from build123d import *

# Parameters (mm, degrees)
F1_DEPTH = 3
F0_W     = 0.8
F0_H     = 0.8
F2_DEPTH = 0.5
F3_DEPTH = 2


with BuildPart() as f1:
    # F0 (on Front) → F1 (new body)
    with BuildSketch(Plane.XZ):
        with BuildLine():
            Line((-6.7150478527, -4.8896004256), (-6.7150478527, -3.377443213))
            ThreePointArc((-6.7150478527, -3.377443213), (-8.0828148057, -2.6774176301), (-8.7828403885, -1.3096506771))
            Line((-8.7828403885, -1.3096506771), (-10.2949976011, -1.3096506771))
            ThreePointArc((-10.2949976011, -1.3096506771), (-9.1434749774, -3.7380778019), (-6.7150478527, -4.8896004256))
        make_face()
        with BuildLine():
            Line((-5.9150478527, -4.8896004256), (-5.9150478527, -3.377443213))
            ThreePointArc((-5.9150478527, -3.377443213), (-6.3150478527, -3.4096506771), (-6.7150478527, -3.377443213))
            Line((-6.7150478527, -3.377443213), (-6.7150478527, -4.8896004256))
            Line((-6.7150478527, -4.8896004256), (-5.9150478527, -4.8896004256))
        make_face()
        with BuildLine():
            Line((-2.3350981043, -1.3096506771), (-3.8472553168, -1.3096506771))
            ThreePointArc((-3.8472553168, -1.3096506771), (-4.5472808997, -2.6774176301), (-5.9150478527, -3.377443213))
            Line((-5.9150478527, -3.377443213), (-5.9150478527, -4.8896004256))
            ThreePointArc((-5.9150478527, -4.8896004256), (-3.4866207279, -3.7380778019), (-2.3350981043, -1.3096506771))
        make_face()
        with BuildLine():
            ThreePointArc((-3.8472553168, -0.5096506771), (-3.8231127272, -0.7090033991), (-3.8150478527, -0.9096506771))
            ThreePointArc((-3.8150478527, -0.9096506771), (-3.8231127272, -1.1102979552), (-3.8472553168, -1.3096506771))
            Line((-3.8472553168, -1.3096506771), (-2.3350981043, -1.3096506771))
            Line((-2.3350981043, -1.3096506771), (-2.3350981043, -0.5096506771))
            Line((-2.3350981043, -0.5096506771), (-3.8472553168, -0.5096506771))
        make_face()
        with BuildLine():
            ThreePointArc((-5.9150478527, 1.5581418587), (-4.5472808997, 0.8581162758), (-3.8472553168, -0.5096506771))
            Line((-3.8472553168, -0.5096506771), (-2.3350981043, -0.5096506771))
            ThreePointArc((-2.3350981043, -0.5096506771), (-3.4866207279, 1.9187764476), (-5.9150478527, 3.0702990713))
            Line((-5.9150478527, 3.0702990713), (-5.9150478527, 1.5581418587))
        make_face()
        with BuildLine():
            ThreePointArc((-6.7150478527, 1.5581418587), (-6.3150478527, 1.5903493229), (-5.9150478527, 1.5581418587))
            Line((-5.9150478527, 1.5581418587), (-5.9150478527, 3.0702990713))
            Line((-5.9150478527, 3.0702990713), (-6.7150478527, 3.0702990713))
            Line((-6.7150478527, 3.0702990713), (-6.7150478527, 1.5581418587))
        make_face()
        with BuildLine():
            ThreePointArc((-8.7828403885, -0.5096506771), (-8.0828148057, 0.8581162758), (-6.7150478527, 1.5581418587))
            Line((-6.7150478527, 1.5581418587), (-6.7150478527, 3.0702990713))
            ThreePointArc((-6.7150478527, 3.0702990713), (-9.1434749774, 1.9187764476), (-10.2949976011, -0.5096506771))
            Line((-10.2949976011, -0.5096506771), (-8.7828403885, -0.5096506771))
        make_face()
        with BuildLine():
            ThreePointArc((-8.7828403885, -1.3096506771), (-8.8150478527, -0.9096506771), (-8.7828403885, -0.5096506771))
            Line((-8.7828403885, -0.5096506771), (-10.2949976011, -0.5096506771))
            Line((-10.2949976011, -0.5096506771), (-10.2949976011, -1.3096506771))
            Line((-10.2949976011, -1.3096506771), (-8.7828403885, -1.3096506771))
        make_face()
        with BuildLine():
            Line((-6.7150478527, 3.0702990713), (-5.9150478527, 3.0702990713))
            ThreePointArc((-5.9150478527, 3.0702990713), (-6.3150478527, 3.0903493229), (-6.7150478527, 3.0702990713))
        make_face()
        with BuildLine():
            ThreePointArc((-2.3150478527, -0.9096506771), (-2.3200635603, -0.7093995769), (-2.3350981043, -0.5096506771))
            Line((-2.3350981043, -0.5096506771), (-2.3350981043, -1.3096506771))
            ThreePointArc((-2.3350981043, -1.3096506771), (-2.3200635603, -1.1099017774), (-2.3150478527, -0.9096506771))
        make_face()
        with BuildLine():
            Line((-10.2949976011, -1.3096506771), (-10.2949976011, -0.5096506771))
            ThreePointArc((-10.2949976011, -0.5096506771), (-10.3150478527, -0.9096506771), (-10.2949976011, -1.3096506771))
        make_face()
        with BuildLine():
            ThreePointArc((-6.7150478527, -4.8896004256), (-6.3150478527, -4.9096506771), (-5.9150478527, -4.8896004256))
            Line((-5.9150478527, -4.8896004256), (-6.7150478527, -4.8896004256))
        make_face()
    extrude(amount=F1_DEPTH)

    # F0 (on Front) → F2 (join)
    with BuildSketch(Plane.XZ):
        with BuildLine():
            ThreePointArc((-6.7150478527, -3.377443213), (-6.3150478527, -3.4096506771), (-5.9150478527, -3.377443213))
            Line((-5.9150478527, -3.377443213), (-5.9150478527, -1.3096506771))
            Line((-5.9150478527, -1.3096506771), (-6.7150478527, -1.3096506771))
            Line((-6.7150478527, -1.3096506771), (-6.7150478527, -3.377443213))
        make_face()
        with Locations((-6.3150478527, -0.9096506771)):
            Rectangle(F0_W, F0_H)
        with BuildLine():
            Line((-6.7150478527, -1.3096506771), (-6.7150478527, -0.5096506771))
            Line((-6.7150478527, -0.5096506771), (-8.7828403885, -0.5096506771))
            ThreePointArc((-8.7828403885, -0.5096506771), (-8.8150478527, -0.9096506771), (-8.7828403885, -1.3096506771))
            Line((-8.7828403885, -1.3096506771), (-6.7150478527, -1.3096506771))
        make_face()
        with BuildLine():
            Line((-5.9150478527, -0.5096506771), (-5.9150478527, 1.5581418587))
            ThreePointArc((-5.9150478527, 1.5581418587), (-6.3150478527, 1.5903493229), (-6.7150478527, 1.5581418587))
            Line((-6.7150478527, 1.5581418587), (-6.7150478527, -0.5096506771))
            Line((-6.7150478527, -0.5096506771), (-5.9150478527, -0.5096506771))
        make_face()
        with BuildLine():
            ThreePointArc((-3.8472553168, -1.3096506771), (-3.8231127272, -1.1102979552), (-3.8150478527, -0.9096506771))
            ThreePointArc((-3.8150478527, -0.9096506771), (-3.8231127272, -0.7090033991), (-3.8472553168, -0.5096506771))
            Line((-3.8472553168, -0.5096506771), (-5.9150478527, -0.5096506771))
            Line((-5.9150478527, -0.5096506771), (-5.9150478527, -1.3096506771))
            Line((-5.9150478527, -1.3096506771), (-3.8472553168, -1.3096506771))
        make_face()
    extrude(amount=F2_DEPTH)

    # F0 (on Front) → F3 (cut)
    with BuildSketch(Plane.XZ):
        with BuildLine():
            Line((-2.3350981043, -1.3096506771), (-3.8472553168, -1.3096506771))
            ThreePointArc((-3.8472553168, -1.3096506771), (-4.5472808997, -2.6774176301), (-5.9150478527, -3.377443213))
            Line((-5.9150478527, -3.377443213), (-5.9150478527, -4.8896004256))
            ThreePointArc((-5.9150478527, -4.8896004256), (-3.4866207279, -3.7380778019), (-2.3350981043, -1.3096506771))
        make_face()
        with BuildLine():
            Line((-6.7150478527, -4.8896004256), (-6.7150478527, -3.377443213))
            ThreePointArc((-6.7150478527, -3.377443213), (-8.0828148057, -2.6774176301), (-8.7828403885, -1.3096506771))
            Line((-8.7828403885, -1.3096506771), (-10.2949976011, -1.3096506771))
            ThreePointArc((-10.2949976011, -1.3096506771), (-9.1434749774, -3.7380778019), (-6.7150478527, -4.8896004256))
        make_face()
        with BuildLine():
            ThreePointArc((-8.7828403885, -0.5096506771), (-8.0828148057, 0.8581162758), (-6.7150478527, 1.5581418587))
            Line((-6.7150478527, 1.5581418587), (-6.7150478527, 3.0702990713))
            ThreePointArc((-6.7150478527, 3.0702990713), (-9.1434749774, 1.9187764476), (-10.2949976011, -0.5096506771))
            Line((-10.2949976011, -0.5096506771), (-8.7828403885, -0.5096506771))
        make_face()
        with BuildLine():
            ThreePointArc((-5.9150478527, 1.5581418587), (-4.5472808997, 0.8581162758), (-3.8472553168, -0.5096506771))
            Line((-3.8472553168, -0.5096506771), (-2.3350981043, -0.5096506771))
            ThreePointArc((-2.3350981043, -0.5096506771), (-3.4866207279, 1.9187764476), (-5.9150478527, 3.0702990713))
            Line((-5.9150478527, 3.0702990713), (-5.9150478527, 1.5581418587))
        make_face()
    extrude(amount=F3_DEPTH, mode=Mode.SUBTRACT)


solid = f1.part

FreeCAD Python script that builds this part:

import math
import FreeCAD as App
import Part
import Sketcher
from FreeCAD import Vector
Q = App.Units.Quantity

doc = App.newDocument("Part")
body = doc.addObject("PartDesign::Body", "Body")

sketch1 = body.newObject("Sketcher::SketchObject", "Sketch")
sketch1.AttachmentSupport = (doc.getObject("XZ_Plane"), [""])
sketch1.MapMode = "FlatFace"
sketch1.addGeometry(Part.ArcOfCircle(Part.Circle(Vector(-6.32, -0.91, 0), Vector(0, 0, 1), 4), math.radians(-174), math.radians(-96)), False)
sketch1.addGeometry(Part.ArcOfCircle(Part.Circle(Vector(-6.32, -0.91, 0), Vector(0, 0, 1), 4), math.radians(-95.74), math.radians(-84.26)), False)
sketch1.addGeometry(Part.ArcOfCircle(Part.Circle(Vector(-6.32, -0.91, 0), Vector(0, 0, 1), 4), math.radians(-84), math.radians(-6)), False)
sketch1.addGeometry(Part.ArcOfCircle(Part.Circle(Vector(-6.32, -0.91, 0), Vector(0, 0, 1), 4), math.radians(-5.74), math.radians(0)), False)
sketch1.addGeometry(Part.ArcOfCircle(Part.Circle(Vector(-6.32, -0.91, 0), Vector(0, 0, 1), 4), math.radians(0), math.radians(5.74)), False)
sketch1.addGeometry(Part.ArcOfCircle(Part.Circle(Vector(-6.32, -0.91, 0), Vector(0, 0, 1), 4), math.radians(6), math.radians(84)), False)
sketch1.addGeometry(Part.ArcOfCircle(Part.Circle(Vector(-6.32, -0.91, 0), Vector(0, 0, 1), 4), math.radians(84.26), math.radians(95.74)), False)
sketch1.addGeometry(Part.ArcOfCircle(Part.Circle(Vector(-6.32, -0.91, 0), Vector(0, 0, 1), 4), math.radians(96), math.radians(174)), False)
sketch1.addGeometry(Part.ArcOfCircle(Part.Circle(Vector(-6.32, -0.91, 0), Vector(0, 0, 1), 4), math.radians(174.26), math.radians(185.74)), False)
sketch1.addGeometry(Part.ArcOfCircle(Part.Circle(Vector(-6.32, -0.91, 0), Vector(0, 0, 1), 2.5), math.radians(-171), math.radians(-99)), False)
sketch1.addGeometry(Part.ArcOfCircle(Part.Circle(Vector(-6.32, -0.91, 0), Vector(0, 0, 1), 2.5), math.radians(170.79), math.radians(189.21)), False)
sketch1.addGeometry(Part.ArcOfCircle(Part.Circle(Vector(-6.32, -0.91, 0), Vector(0, 0, 1), 2.5), math.radians(99), math.radians(171)), False)
sketch1.addGeometry(Part.ArcOfCircle(Part.Circle(Vector(-6.32, -0.91, 0), Vector(0, 0, 1), 2.5), math.radians(80.79), math.radians(99.21)), False)
sketch1.addGeometry(Part.ArcOfCircle(Part.Circle(Vector(-6.32, -0.91, 0), Vector(0, 0, 1), 2.5), math.radians(9), math.radians(81)), False)
sketch1.addGeometry(Part.ArcOfCircle(Part.Circle(Vector(-6.32, -0.91, 0), Vector(0, 0, 1), 2.5), math.radians(0), math.radians(9.21)), False)
sketch1.addGeometry(Part.ArcOfCircle(Part.Circle(Vector(-6.32, -0.91, 0), Vector(0, 0, 1), 2.5), math.radians(-9.21), math.radians(0)), False)
sketch1.addGeometry(Part.ArcOfCircle(Part.Circle(Vector(-6.32, -0.91, 0), Vector(0, 0, 1), 2.5), math.radians(-81), math.radians(-9)), False)
sketch1.addGeometry(Part.ArcOfCircle(Part.Circle(Vector(-6.32, -0.91, 0), Vector(0, 0, 1), 2.5), math.radians(-99.21), math.radians(-80.79)), False)
sketch1.addConstraint(Sketcher.Constraint("Tangent", 0, 2, 1, 1))
sketch1.addConstraint(Sketcher.Constraint("Tangent", 1, 2, 2, 1))
sketch1.addConstraint(Sketcher.Constraint("Tangent", 2, 2, 3, 1))
sketch1.addConstraint(Sketcher.Constraint("Tangent", 3, 2, 4, 1))
sketch1.addConstraint(Sketcher.Constraint("Tangent", 4, 2, 5, 1))
sketch1.addConstraint(Sketcher.Constraint("Tangent", 5, 2, 6, 1))
sketch1.addConstraint(Sketcher.Constraint("Tangent", 6, 2, 7, 1))
sketch1.addConstraint(Sketcher.Constraint("Tangent", 7, 2, 8, 1))
sketch1.addConstraint(Sketcher.Constraint("Tangent", 8, 2, 0, 1))
sketch1.addConstraint(Sketcher.Constraint("Tangent", 9, 1, 10, 2))
sketch1.addConstraint(Sketcher.Constraint("Tangent", 10, 1, 11, 2))
sketch1.addConstraint(Sketcher.Constraint("Tangent", 11, 1, 12, 2))
sketch1.addConstraint(Sketcher.Constraint("Tangent", 12, 1, 13, 2))
sketch1.addConstraint(Sketcher.Constraint("Tangent", 13, 1, 14, 2))
sketch1.addConstraint(Sketcher.Constraint("Tangent", 14, 1, 15, 2))
sketch1.addConstraint(Sketcher.Constraint("Tangent", 15, 1, 16, 2))
sketch1.addConstraint(Sketcher.Constraint("Tangent", 16, 1, 17, 2))
sketch1.addConstraint(Sketcher.Constraint("Tangent", 17, 1, 9, 2))
sketch1.addConstraint(Sketcher.Constraint("Coincident", 2, 3, 0, 3))
sketch1.addConstraint(Sketcher.Constraint("Coincident", 4, 3, 0, 3))
sketch1.addConstraint(Sketcher.Constraint("Coincident", 6, 3, 0, 3))
sketch1.addConstraint(Sketcher.Constraint("Coincident", 9, 3, 0, 3))
sketch1.addConstraint(Sketcher.Constraint("Coincident", 11, 3, 0, 3))
sketch1.addConstraint(Sketcher.Constraint("Coincident", 13, 3, 0, 3))
sketch1.addConstraint(Sketcher.Constraint("Coincident", 15, 3, 0, 3))
sketch1.addConstraint(Sketcher.Constraint("Horizontal", 0, 2, 1, 2))
sketch1.addConstraint(Sketcher.Constraint("Horizontal", 17, 3, 3, 2))
sketch1.addConstraint(Sketcher.Constraint("Horizontal", 5, 2, 6, 2))
sketch1.addConstraint(Sketcher.Constraint("Horizontal", 4, 2, 7, 2))
sketch1.addConstraint(Sketcher.Constraint("Horizontal", 2, 2, 8, 2))
sketch1.addConstraint(Sketcher.Constraint("Horizontal", 8, 2, 9, 1))
sketch1.addConstraint(Sketcher.Constraint("Horizontal", 7, 2, 10, 1))
sketch1.addConstraint(Sketcher.Constraint("Horizontal", 11, 1, 12, 1))
sketch1.addConstraint(Sketcher.Constraint("Horizontal", 10, 1, 13, 1))
sketch1.addConstraint(Sketcher.Constraint("Horizontal", 3, 2, 14, 1))
sketch1.addConstraint(Sketcher.Constraint("Horizontal", 9, 1, 15, 1))
sketch1.addConstraint(Sketcher.Constraint("Horizontal", 16, 1, 17, 1))
sketch1.addConstraint(Sketcher.Constraint("Vertical", 2, 2, 4, 2))
sketch1.addConstraint(Sketcher.Constraint("Vertical", 1, 2, 5, 2))
sketch1.addConstraint(Sketcher.Constraint("Vertical", 6, 2, 11, 1))
sketch1.addConstraint(Sketcher.Constraint("Vertical", 12, 1, 16, 1))
sketch1.addConstraint(Sketcher.Constraint("Radius", 0, Q("4 mm")))
sketch1.addConstraint(Sketcher.Constraint("Radius", 9, Q("2.5 mm")))
sketch1.addConstraint(Sketcher.Constraint("DistanceX", 0, 2, 4, 3, Q("0.4 mm")))
sketch1.addConstraint(Sketcher.Constraint("DistanceY", 2, 2, 0, 3, Q("0.4 mm")))
sketch1.addConstraint(Sketcher.Constraint("DistanceY", 0, 2, -1, 1, Q("4.8896 mm")))
sketch1.addConstraint(Sketcher.Constraint("DistanceX", 2, 2, -1, 1, Q("2.335098 mm")))
pad1 = body.newObject("PartDesign::Pad", "Pad")
pad1.Profile = sketch1
pad1.Length = 3

sketch2 = body.newObject("Sketcher::SketchObject", "Sketch001")
sketch2.AttachmentSupport = (doc.getObject("XZ_Plane"), [""])
sketch2.MapMode = "FlatFace"
sketch2.addGeometry(Part.ArcOfCircle(Part.Circle(Vector(-6.32, -0.91, 0), Vector(0, 0, 1), 2.5), math.radians(-99.21), math.radians(-80.79)), False)
sketch2.addGeometry(Part.LineSegment(Vector(-5.92, -3.38, 0), Vector(-5.92, -1.31, 0)), False)
sketch2.addGeometry(Part.LineSegment(Vector(-5.92, -1.31, 0), Vector(-3.85, -1.31, 0)), False)
sketch2.addGeometry(Part.ArcOfCircle(Part.Circle(Vector(-6.32, -0.91, 0), Vector(0, 0, 1), 2.5), math.radians(-9.21), math.radians(0)), False)
sketch2.addGeometry(Part.ArcOfCircle(Part.Circle(Vector(-6.32, -0.91, 0), Vector(0, 0, 1), 2.5), math.radians(0), math.radians(9.21)), False)
sketch2.addGeometry(Part.LineSegment(Vector(-3.85, -0.51, 0), Vector(-5.92, -0.51, 0)), False)
sketch2.addGeometry(Part.LineSegment(Vector(-5.92, -0.51, 0), Vector(-5.92, 1.56, 0)), False)
sketch2.addGeometry(Part.ArcOfCircle(Part.Circle(Vector(-6.32, -0.91, 0), Vector(0, 0, 1), 2.5), math.radians(80.79), math.radians(99.21)), False)
sketch2.addGeometry(Part.LineSegment(Vector(-6.72, 1.56, 0), Vector(-6.72, -0.51, 0)), False)
sketch2.addGeometry(Part.LineSegment(Vector(-6.72, -0.51, 0), Vector(-8.78, -0.51, 0)), False)
sketch2.addGeometry(Part.ArcOfCircle(Part.Circle(Vector(-6.32, -0.91, 0), Vector(0, 0, 1), 2.5), math.radians(170.79), math.radians(189.21)), False)
sketch2.addGeometry(Part.LineSegment(Vector(-8.78, -1.31, 0), Vector(-6.72, -1.31, 0)), False)
sketch2.addGeometry(Part.LineSegment(Vector(-6.72, -1.31, 0), Vector(-6.72, -3.38, 0)), False)
sketch2.addConstraint(Sketcher.Constraint("Coincident", 0, 2, 1, 1))
sketch2.addConstraint(Sketcher.Constraint("Coincident", 1, 2, 2, 1))
sketch2.addConstraint(Sketcher.Constraint("Coincident", 2, 2, 3, 1))
sketch2.addConstraint(Sketcher.Constraint("Tangent", 3, 2, 4, 1))
sketch2.addConstraint(Sketcher.Constraint("Coincident", 4, 2, 5, 1))
sketch2.addConstraint(Sketcher.Constraint("Coincident", 5, 2, 6, 1))
sketch2.addConstraint(Sketcher.Constraint("Coincident", 6, 2, 7, 1))
sketch2.addConstraint(Sketcher.Constraint("Coincident", 7, 2, 8, 1))
sketch2.addConstraint(Sketcher.Constraint("Coincident", 8, 2, 9, 1))
sketch2.addConstraint(Sketcher.Constraint("Coincident", 9, 2, 10, 1))
sketch2.addConstraint(Sketcher.Constraint("Coincident", 10, 2, 11, 1))
sketch2.addConstraint(Sketcher.Constraint("Coincident", 11, 2, 12, 1))
sketch2.addConstraint(Sketcher.Constraint("Coincident", 12, 2, 0, 1))
sketch2.addConstraint(Sketcher.Constraint("Vertical", 1))
sketch2.addConstraint(Sketcher.Constraint("Horizontal", 2))
sketch2.addConstraint(Sketcher.Constraint("Horizontal", 5))
sketch2.addConstraint(Sketcher.Constraint("Vertical", 6))
sketch2.addConstraint(Sketcher.Constraint("Vertical", 8))
sketch2.addConstraint(Sketcher.Constraint("Horizontal", 9))
sketch2.addConstraint(Sketcher.Constraint("Horizontal", 11))
sketch2.addConstraint(Sketcher.Constraint("Vertical", 12))
sketch2.addConstraint(Sketcher.Constraint("Coincident", 3, 3, 0, 3))
sketch2.addConstraint(Sketcher.Constraint("Coincident", 7, 3, 0, 3))
sketch2.addConstraint(Sketcher.Constraint("Coincident", 10, 3, 0, 3))
sketch2.addConstraint(Sketcher.Constraint("Equal", 0, 3))
sketch2.addConstraint(Sketcher.Constraint("Equal", 3, 4))
sketch2.addConstraint(Sketcher.Constraint("Equal", 4, 7))
sketch2.addConstraint(Sketcher.Constraint("Equal", 7, 10))
sketch2.addConstraint(Sketcher.Constraint("Horizontal", 10, 3, 3, 2))
sketch2.addConstraint(Sketcher.Constraint("Horizontal", 6, 2, 7, 2))
sketch2.addConstraint(Sketcher.Constraint("Horizontal", 5, 2, 8, 2))
sketch2.addConstraint(Sketcher.Constraint("Horizontal", 2, 2, 10, 2))
sketch2.addConstraint(Sketcher.Constraint("Horizontal", 0, 2, 12, 2))
sketch2.addConstraint(Sketcher.Constraint("Vertical", 2, 2, 4, 2))
sketch2.addConstraint(Sketcher.Constraint("Vertical", 1, 2, 5, 2))
sketch2.addConstraint(Sketcher.Constraint("Equal", 11, 1))
sketch2.addConstraint(Sketcher.Constraint("Radius", 0, Q("2.5 mm")))
sketch2.addConstraint(Sketcher.Constraint("DistanceX", 10, 3, 0, 2, Q("0.4 mm")))
sketch2.addConstraint(Sketcher.Constraint("DistanceY", 0, 3, -1, 1, Q("0.909651 mm")))
sketch2.addConstraint(Sketcher.Constraint("DistanceX", 9, 2, -1, 1, Q("8.78284 mm")))
pad2 = body.newObject("PartDesign::Pad", "Pad001")
pad2.Profile = sketch2
pad2.Length = 0.5

sketch3 = body.newObject("Sketcher::SketchObject", "Sketch002")
sketch3.AttachmentSupport = (doc.getObject("XZ_Plane"), [""])
sketch3.MapMode = "FlatFace"
sketch3.addGeometry(Part.LineSegment(Vector(-2.3, -1.3, 0), Vector(-3.8, -1.3, 0)), False)
sketch3.addGeometry(Part.ArcOfCircle(Part.Circle(Vector(-6.3, -0.9, 0), Vector(0, 0, 1), 2.5), math.radians(-81), math.radians(-9)), False)
sketch3.addGeometry(Part.LineSegment(Vector(-5.9, -3.4, 0), Vector(-5.9, -4.9, 0)), False)
sketch3.addGeometry(Part.ArcOfCircle(Part.Circle(Vector(-6.3, -0.9, 0), Vector(0, 0, 1), 4), math.radians(-84), math.radians(-6)), False)
sketch3.addGeometry(Part.LineSegment(Vector(-6.7, -4.9, 0), Vector(-6.7, -3.4, 0)), False)
sketch3.addGeometry(Part.ArcOfCircle(Part.Circle(Vector(-6.3, -0.9, 0), Vector(0, 0, 1), 2.5), math.radians(-171), math.radians(-99)), False)
sketch3.addGeometry(Part.LineSegment(Vector(-8.8, -1.3, 0), Vector(-10.3, -1.3, 0)), False)
sketch3.addGeometry(Part.ArcOfCircle(Part.Circle(Vector(-6.3, -0.9, 0), Vector(0, 0, 1), 4), math.radians(-174), math.radians(-96)), False)
sketch3.addGeometry(Part.ArcOfCircle(Part.Circle(Vector(-6.3, -0.9, 0), Vector(0, 0, 1), 2.5), math.radians(99), math.radians(171)), False)
sketch3.addGeometry(Part.LineSegment(Vector(-6.7, 1.6, 0), Vector(-6.7, 3.1, 0)), False)
sketch3.addGeometry(Part.ArcOfCircle(Part.Circle(Vector(-6.3, -0.9, 0), Vector(0, 0, 1), 4), math.radians(96), math.radians(174)), False)
sketch3.addGeometry(Part.LineSegment(Vector(-10.3, -0.5, 0), Vector(-8.8, -0.5, 0)), False)
sketch3.addGeometry(Part.ArcOfCircle(Part.Circle(Vector(-6.3, -0.9, 0), Vector(0, 0, 1), 2.5), math.radians(9), math.radians(81)), False)
sketch3.addGeometry(Part.LineSegment(Vector(-3.8, -0.5, 0), Vector(-2.3, -0.5, 0)), False)
sketch3.addGeometry(Part.ArcOfCircle(Part.Circle(Vector(-6.3, -0.9, 0), Vector(0, 0, 1), 4), math.radians(6), math.radians(84)), False)
sketch3.addGeometry(Part.LineSegment(Vector(-5.9, 3.1, 0), Vector(-5.9, 1.6, 0)), False)
sketch3.addConstraint(Sketcher.Constraint("Coincident", 0, 2, 1, 2))
sketch3.addConstraint(Sketcher.Constraint("Coincident", 1, 1, 2, 1))
sketch3.addConstraint(Sketcher.Constraint("Coincident", 2, 2, 3, 1))
sketch3.addConstraint(Sketcher.Constraint("Coincident", 3, 2, 0, 1))
sketch3.addConstraint(Sketcher.Constraint("Coincident", 4, 2, 5, 2))
sketch3.addConstraint(Sketcher.Constraint("Coincident", 5, 1, 6, 1))
sketch3.addConstraint(Sketcher.Constraint("Coincident", 6, 2, 7, 1))
sketch3.addConstraint(Sketcher.Constraint("Coincident", 7, 2, 4, 1))
sketch3.addConstraint(Sketcher.Constraint("Coincident", 8, 1, 9, 1))
sketch3.addConstraint(Sketcher.Constraint("Coincident", 9, 2, 10, 1))
sketch3.addConstraint(Sketcher.Constraint("Coincident", 10, 2, 11, 1))
sketch3.addConstraint(Sketcher.Constraint("Coincident", 11, 2, 8, 2))
sketch3.addConstraint(Sketcher.Constraint("Coincident", 12, 1, 13, 1))
sketch3.addConstraint(Sketcher.Constraint("Coincident", 13, 2, 14, 1))
sketch3.addConstraint(Sketcher.Constraint("Coincident", 14, 2, 15, 1))
sketch3.addConstraint(Sketcher.Constraint("Coincident", 15, 2, 12, 2))
sketch3.addConstraint(Sketcher.Constraint("Horizontal", 0))
sketch3.addConstraint(Sketcher.Constraint("Vertical", 2))
sketch3.addConstraint(Sketcher.Constraint("Vertical", 4))
sketch3.addConstraint(Sketcher.Constraint("Horizontal", 6))
sketch3.addConstraint(Sketcher.Constraint("Vertical", 9))
sketch3.addConstraint(Sketcher.Constraint("Horizontal", 11))
sketch3.addConstraint(Sketcher.Constraint("Horizontal", 13))
sketch3.addConstraint(Sketcher.Constraint("Vertical", 15))
sketch3.addConstraint(Sketcher.Constraint("Coincident", 3, 3, 1, 3))
sketch3.addConstraint(Sketcher.Constraint("Coincident", 5, 3, 1, 3))
sketch3.addConstraint(Sketcher.Constraint("Coincident", 7, 3, 1, 3))
sketch3.addConstraint(Sketcher.Constraint("Coincident", 8, 3, 1, 3))
sketch3.addConstraint(Sketcher.Constraint("Coincident", 10, 3, 1, 3))
sketch3.addConstraint(Sketcher.Constraint("Coincident", 12, 3, 1, 3))
sketch3.addConstraint(Sketcher.Constraint("Coincident", 14, 3, 1, 3))
sketch3.addConstraint(Sketcher.Constraint("Equal", 1, 5))
sketch3.addConstraint(Sketcher.Constraint("Equal", 3, 7))
sketch3.addConstraint(Sketcher.Constraint("Equal", 5, 8))
sketch3.addConstraint(Sketcher.Constraint("Equal", 7, 10))
sketch3.addConstraint(Sketcher.Constraint("Equal", 8, 12))
sketch3.addConstraint(Sketcher.Constraint("Equal", 10, 14))
sketch3.addConstraint(Sketcher.Constraint("Horizontal", 1, 1, 4, 2))
sketch3.addConstraint(Sketcher.Constraint("Horizontal", 3, 2, 5, 1))
sketch3.addConstraint(Sketcher.Constraint("Horizontal", 11, 2, 12, 1))
sketch3.addConstraint(Sketcher.Constraint("Horizontal", 9, 2, 14, 2))
sketch3.addConstraint(Sketcher.Constraint("Vertical", 7, 2, 8, 1))
sketch3.addConstraint(Sketcher.Constraint("Vertical", 6, 2, 10, 2))
sketch3.addConstraint(Sketcher.Constraint("Equal", 13, 2))
sketch3.addConstraint(Sketcher.Constraint("Radius", 3, Q("4 mm")))
sketch3.addConstraint(Sketcher.Constraint("Radius", 1, Q("2.5 mm")))
sketch3.addConstraint(Sketcher.Constraint("DistanceY", 0, 2, 1, 3, Q("0.4 mm")))
sketch3.addConstraint(Sketcher.Constraint("DistanceY", 2, 2, -1, 1, Q("4.8896 mm")))
sketch3.addConstraint(Sketcher.Constraint("DistanceX", 3, 2, -1, 1, Q("2.335098 mm")))
pocket1 = body.newObject("PartDesign::Pocket", "Pocket")
pocket1.Profile = sketch3
pocket1.Length = 2
pocket1.Reversed = True

doc.recompute()
